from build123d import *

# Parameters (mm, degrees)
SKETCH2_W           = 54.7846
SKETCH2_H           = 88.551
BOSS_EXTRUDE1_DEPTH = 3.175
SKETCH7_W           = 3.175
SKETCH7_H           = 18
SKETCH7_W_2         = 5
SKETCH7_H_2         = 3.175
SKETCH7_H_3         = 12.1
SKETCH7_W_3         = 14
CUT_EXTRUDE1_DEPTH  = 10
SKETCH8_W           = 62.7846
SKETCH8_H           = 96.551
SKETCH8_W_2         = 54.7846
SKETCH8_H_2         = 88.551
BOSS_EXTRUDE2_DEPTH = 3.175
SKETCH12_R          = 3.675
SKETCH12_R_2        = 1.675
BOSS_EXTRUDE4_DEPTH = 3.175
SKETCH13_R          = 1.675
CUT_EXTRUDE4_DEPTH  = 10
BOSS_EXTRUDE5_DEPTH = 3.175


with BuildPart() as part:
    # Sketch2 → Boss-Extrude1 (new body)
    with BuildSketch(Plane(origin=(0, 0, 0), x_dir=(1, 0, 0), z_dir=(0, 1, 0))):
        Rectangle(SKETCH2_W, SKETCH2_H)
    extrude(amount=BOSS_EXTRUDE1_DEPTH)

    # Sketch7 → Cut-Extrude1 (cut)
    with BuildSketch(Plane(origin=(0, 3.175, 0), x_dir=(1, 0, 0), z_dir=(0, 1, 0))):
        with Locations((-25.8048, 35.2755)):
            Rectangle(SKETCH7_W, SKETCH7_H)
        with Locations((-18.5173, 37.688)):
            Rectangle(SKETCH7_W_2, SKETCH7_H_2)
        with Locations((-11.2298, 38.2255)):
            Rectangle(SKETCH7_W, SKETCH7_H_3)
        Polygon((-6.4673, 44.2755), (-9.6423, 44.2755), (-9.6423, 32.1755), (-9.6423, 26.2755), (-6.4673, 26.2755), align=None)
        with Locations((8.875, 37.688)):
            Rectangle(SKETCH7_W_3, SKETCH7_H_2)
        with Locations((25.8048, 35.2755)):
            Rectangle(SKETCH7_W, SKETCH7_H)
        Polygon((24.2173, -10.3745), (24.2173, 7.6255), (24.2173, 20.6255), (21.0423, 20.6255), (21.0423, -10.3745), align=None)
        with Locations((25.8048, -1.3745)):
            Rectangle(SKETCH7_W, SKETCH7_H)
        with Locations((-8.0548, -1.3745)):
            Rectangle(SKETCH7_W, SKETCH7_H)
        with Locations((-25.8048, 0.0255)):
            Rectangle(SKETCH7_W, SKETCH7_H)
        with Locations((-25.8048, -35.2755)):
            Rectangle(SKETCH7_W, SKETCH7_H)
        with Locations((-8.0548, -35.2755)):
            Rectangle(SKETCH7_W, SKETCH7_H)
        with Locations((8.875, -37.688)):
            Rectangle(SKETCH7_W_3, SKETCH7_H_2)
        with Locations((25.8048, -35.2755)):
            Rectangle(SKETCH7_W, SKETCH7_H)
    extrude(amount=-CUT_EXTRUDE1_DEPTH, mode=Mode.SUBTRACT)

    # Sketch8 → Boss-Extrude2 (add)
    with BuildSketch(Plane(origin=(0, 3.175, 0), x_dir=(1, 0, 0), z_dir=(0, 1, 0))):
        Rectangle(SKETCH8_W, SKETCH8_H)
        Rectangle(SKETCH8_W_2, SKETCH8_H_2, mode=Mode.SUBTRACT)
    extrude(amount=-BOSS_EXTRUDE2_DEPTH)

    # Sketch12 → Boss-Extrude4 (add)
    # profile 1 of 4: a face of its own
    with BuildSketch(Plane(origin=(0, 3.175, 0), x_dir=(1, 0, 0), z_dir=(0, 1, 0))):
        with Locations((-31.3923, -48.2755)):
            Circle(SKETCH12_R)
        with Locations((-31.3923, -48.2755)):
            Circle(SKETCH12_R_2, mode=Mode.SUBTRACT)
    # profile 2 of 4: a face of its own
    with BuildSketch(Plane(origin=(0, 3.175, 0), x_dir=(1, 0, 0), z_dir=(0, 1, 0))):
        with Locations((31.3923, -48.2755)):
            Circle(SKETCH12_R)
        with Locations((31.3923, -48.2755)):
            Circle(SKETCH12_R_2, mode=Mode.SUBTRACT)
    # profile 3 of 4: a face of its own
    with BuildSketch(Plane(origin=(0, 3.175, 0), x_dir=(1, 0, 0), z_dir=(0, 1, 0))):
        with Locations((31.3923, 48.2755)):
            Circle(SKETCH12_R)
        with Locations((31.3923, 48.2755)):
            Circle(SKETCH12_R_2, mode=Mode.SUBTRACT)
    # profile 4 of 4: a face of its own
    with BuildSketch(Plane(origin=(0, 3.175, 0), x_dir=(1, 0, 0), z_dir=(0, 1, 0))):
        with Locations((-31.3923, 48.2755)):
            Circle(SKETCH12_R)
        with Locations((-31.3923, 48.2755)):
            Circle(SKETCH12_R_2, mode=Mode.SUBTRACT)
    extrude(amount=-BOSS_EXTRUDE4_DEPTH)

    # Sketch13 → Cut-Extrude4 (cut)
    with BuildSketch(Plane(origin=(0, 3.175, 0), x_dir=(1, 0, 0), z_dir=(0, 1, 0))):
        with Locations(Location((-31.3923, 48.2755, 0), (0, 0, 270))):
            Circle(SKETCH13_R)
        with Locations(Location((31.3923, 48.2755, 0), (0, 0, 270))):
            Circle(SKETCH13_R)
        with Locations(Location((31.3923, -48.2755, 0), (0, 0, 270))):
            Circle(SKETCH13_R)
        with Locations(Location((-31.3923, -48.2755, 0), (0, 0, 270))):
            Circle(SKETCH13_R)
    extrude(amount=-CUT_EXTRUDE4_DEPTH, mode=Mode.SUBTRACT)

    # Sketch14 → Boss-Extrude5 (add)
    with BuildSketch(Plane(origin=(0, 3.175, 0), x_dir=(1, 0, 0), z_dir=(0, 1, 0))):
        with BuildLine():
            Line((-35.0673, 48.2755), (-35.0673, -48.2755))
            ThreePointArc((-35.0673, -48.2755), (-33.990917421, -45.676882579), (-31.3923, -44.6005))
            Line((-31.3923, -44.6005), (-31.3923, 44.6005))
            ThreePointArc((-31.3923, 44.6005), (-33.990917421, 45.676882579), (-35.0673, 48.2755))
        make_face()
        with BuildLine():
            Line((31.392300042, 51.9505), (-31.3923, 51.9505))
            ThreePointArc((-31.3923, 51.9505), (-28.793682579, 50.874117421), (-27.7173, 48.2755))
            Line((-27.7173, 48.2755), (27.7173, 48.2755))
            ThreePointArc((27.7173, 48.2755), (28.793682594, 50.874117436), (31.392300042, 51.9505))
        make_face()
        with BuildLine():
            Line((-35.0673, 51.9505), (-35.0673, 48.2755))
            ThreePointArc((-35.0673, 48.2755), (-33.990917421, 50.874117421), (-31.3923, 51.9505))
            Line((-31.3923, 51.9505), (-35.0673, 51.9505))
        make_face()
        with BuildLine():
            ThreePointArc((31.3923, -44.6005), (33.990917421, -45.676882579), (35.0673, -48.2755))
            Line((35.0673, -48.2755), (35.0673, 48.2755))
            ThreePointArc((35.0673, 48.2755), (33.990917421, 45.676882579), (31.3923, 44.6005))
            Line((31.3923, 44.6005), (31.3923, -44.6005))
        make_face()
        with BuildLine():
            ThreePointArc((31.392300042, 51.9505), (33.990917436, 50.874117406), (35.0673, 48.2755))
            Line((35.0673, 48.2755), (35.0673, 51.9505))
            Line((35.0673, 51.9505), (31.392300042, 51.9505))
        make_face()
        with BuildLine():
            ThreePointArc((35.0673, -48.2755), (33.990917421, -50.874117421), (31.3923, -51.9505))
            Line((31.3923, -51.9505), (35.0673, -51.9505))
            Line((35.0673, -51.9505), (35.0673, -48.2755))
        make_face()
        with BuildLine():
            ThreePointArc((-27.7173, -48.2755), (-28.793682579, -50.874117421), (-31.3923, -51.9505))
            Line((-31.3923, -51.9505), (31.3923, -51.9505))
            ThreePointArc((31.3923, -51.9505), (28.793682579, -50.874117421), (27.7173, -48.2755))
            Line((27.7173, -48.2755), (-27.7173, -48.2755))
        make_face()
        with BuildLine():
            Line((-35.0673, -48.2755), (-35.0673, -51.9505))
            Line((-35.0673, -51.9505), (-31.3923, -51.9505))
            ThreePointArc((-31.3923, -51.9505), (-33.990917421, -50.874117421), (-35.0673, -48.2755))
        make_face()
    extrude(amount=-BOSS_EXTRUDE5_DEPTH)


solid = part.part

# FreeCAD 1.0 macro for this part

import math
import FreeCAD as App
import Part
import Sketcher
from FreeCAD import Vector
Q = App.Units.Quantity

doc = App.newDocument("Part")
body = doc.addObject("PartDesign::Body", "Body")

# Sketch on XZ plane
sketch1 = doc.addObject("Sketcher::SketchObject", "Sketch")
body.addObject(sketch1)
sketch1.AttachmentSupport = (doc.XZ_Plane, [""])
sketch1.MapMode = "FlatFace"
sketch1.addGeometry(Part.LineSegment(Vector(-27, -44, 0), Vector(-27, 44, 0)), False)
sketch1.addGeometry(Part.LineSegment(Vector(-27, 44, 0), Vector(27, 44, 0)), False)
sketch1.addGeometry(Part.LineSegment(Vector(27, 44, 0), Vector(27, -44, 0)), False)
sketch1.addGeometry(Part.LineSegment(Vector(27, -44, 0), Vector(-27, -44, 0)), False)
sketch1.addConstraint(Sketcher.Constraint("Coincident", 0, 2, 1, 1))
sketch1.addConstraint(Sketcher.Constraint("Coincident", 1, 2, 2, 1))
sketch1.addConstraint(Sketcher.Constraint("Coincident", 2, 2, 3, 1))
sketch1.addConstraint(Sketcher.Constraint("Coincident", 3, 2, 0, 1))
sketch1.addConstraint(Sketcher.Constraint("Vertical", 0))
sketch1.addConstraint(Sketcher.Constraint("Horizontal", 1))
sketch1.addConstraint(Sketcher.Constraint("Vertical", 2))
sketch1.addConstraint(Sketcher.Constraint("Horizontal", 3))
sketch1.addConstraint(Sketcher.Constraint("Symmetric", 0, 2, 2, 2, -1, 1))
sketch1.addConstraint(Sketcher.Constraint("DistanceY", 0, 1, 0, 2, Q("88.551 mm")))
sketch1.addConstraint(Sketcher.Constraint("DistanceX", 1, 1, 1, 2, Q("54.7846 mm")))
pad1 = doc.addObject("PartDesign::Pad", "Pad")
body.addObject(pad1)
pad1.Profile = sketch1
pad1.Length = 3.175
pad1.Reversed = True

# Sketch on XZ plane
sketch2 = doc.addObject("Sketcher::SketchObject", "Sketch001")
body.addObject(sketch2)
sketch2.AttachmentSupport = (doc.XZ_Plane, [""])
sketch2.MapMode = "FlatFace"
sketch2.AttachmentOffset = App.Placement(Vector(0, 0, -3.175), App.Rotation())
sketch2.addGeometry(Part.LineSegment(Vector(-27.4, -44.3, 0), Vector(-27.4, -26.3, 0)), False)
sketch2.addGeometry(Part.LineSegment(Vector(-27.4, -26.3, 0), Vector(-24.2, -26.3, 0)), False)
sketch2.addGeometry(Part.LineSegment(Vector(-24.2, -26.3, 0), Vector(-24.2, -44.3, 0)), False)
sketch2.addGeometry(Part.LineSegment(Vector(-24.2, -44.3, 0), Vector(-27.4, -44.3, 0)), False)
sketch2.addGeometry(Part.LineSegment(Vector(-21, -39.3, 0), Vector(-21, -36.1, 0)), False)
sketch2.addGeometry(Part.LineSegment(Vector(-21, -36.1, 0), Vector(-16, -36.1, 0)), False)
sketch2.addGeometry(Part.LineSegment(Vector(-16, -36.1, 0), Vector(-16, -39.3, 0)), False)
sketch2.addGeometry(Part.LineSegment(Vector(-16, -39.3, 0), Vector(-21, -39.3, 0)), False)
sketch2.addGeometry(Part.LineSegment(Vector(-12.8, -44.3, 0), Vector(-12.8, -32.2, 0)), False)
sketch2.addGeometry(Part.LineSegment(Vector(-12.8, -32.2, 0), Vector(-9.6, -32.2, 0)), False)
sketch2.addGeometry(Part.LineSegment(Vector(-9.6, -32.2, 0), Vector(-9.6, -26.3, 0)), False)
sketch2.addGeometry(Part.LineSegment(Vector(-9.6, -26.3, 0), Vector(-6.5, -26.3, 0)), False)
sketch2.addGeometry(Part.LineSegment(Vector(-6.5, -26.3, 0), Vector(-6.5, -44.3, 0)), False)
sketch2.addGeometry(Part.LineSegment(Vector(-6.5, -44.3, 0), Vector(-12.8, -44.3, 0)), False)
sketch2.addGeometry(Part.LineSegment(Vector(1.9, -39.3, 0), Vector(1.9, -36.1, 0)), False)
sketch2.addGeometry(Part.LineSegment(Vector(1.9, -36.1, 0), Vector(15.9, -36.1, 0)), False)
sketch2.addGeometry(Part.LineSegment(Vector(15.9, -36.1, 0), Vector(15.9, -39.3, 0)), False)
sketch2.addGeometry(Part.LineSegment(Vector(15.9, -39.3, 0), Vector(1.9, -39.3, 0)), False)
sketch2.addGeometry(Part.LineSegment(Vector(24.2, -44.3, 0), Vector(24.2, -26.3, 0)), False)
sketch2.addGeometry(Part.LineSegment(Vector(24.2, -26.3, 0), Vector(27.4, -26.3, 0)), False)
sketch2.addGeometry(Part.LineSegment(Vector(27.4, -26.3, 0), Vector(27.4, -44.3, 0)), False)
sketch2.addGeometry(Part.LineSegment(Vector(27.4, -44.3, 0), Vector(24.2, -44.3, 0)), False)
sketch2.addGeometry(Part.LineSegment(Vector(24.2, -7.6, 0), Vector(24.2, -20.6, 0)), False)
sketch2.addGeometry(Part.LineSegment(Vector(24.2, -20.6, 0), Vector(21, -20.6, 0)), False)
sketch2.addGeometry(Part.LineSegment(Vector(21, -20.6, 0), Vector(21, 10.4, 0)), False)
sketch2.addGeometry(Part.LineSegment(Vector(21, 10.4, 0), Vector(27.4, 10.4, 0)), False)
sketch2.addGeometry(Part.LineSegment(Vector(27.4, 10.4, 0), Vector(27.4, -7.6, 0)), False)
sketch2.addGeometry(Part.LineSegment(Vector(27.4, -7.6, 0), Vector(24.2, -7.6, 0)), False)
sketch2.addGeometry(Part.LineSegment(Vector(-9.6, -7.6, 0), Vector(-9.6, 10.4, 0)), False)
sketch2.addGeometry(Part.LineSegment(Vector(-9.6, 10.4, 0), Vector(-6.5, 10.4, 0)), False)
sketch2.addGeometry(Part.LineSegment(Vector(-6.5, 10.4, 0), Vector(-6.5, -7.6, 0)), False)
sketch2.addGeometry(Part.LineSegment(Vector(-6.5, -7.6, 0), Vector(-9.6, -7.6, 0)), False)
sketch2.addGeometry(Part.LineSegment(Vector(-27.4, -9, 0), Vector(-27.4, 9, 0)), False)
sketch2.addGeometry(Part.LineSegment(Vector(-27.4, 9, 0), Vector(-24.2, 9, 0)), False)
sketch2.addGeometry(Part.LineSegment(Vector(-24.2, 9, 0), Vector(-24.2, -9, 0)), False)
sketch2.addGeometry(Part.LineSegment(Vector(-24.2, -9, 0), Vector(-27.4, -9, 0)), False)
sketch2.addGeometry(Part.LineSegment(Vector(-27.4, 26.3, 0), Vector(-27.4, 44.3, 0)), False)
sketch2.addGeometry(Part.LineSegment(Vector(-27.4, 44.3, 0), Vector(-24.2, 44.3, 0)), False)
sketch2.addGeometry(Part.LineSegment(Vector(-24.2, 44.3, 0), Vector(-24.2, 26.3, 0)), False)
sketch2.addGeometry(Part.LineSegment(Vector(-24.2, 26.3, 0), Vector(-27.4, 26.3, 0)), False)
sketch2.addGeometry(Part.LineSegment(Vector(-9.6, 26.3, 0), Vector(-9.6, 44.3, 0)), False)
sketch2.addGeometry(Part.LineSegment(Vector(-9.6, 44.3, 0), Vector(-6.5, 44.3, 0)), False)
sketch2.addGeometry(Part.LineSegment(Vector(-6.5, 44.3, 0), Vector(-6.5, 26.3, 0)), False)
sketch2.addGeometry(Part.LineSegment(Vector(-6.5, 26.3, 0), Vector(-9.6, 26.3, 0)), False)
sketch2.addGeometry(Part.LineSegment(Vector(1.9, 36.1, 0), Vector(1.9, 39.3, 0)), False)
sketch2.addGeometry(Part.LineSegment(Vector(1.9, 39.3, 0), Vector(15.9, 39.3, 0)), False)
sketch2.addGeometry(Part.LineSegment(Vector(15.9, 39.3, 0), Vector(15.9, 36.1, 0)), False)
sketch2.addGeometry(Part.LineSegment(Vector(15.9, 36.1, 0), Vector(1.9, 36.1, 0)), False)
sketch2.addGeometry(Part.LineSegment(Vector(24.2, 26.3, 0), Vector(24.2, 44.3, 0)), False)
sketch2.addGeometry(Part.LineSegment(Vector(24.2, 44.3, 0), Vector(27.4, 44.3, 0)), False)
sketch2.addGeometry(Part.LineSegment(Vector(27.4, 44.3, 0), Vector(27.4, 26.3, 0)), False)
sketch2.addGeometry(Part.LineSegment(Vector(27.4, 26.3, 0), Vector(24.2, 26.3, 0)), False)
sketch2.addConstraint(Sketcher.Constraint("Coincident", 0, 2, 1, 1))
sketch2.addConstraint(Sketcher.Constraint("Coincident", 1, 2, 2, 1))
sketch2.addConstraint(Sketcher.Constraint("Coincident", 2, 2, 3, 1))
sketch2.addConstraint(Sketcher.Constraint("Coincident", 3, 2, 0, 1))
sketch2.addConstraint(Sketcher.Constraint("Coincident", 4, 2, 5, 1))
sketch2.addConstraint(Sketcher.Constraint("Coincident", 5, 2, 6, 1))
sketch2.addConstraint(Sketcher.Constraint("Coincident", 6, 2, 7, 1))
sketch2.addConstraint(Sketcher.Constraint("Coincident", 7, 2, 4, 1))
sketch2.addConstraint(Sketcher.Constraint("Coincident", 8, 2, 9, 1))
sketch2.addConstraint(Sketcher.Constraint("Coincident", 9, 2, 10, 1))
sketch2.addConstraint(Sketcher.Constraint("Coincident", 10, 2, 11, 1))
sketch2.addConstraint(Sketcher.Constraint("Coincident", 11, 2, 12, 1))
sketch2.addConstraint(Sketcher.Constraint("Coincident", 12, 2, 13, 1))
sketch2.addConstraint(Sketcher.Constraint("Coincident", 13, 2, 8, 1))
sketch2.addConstraint(Sketcher.Constraint("Coincident", 14, 2, 15, 1))
sketch2.addConstraint(Sketcher.Constraint("Coincident", 15, 2, 16, 1))
sketch2.addConstraint(Sketcher.Constraint("Coincident", 16, 2, 17, 1))
sketch2.addConstraint(Sketcher.Constraint("Coincident", 17, 2, 14, 1))
sketch2.addConstraint(Sketcher.Constraint("Coincident", 18, 2, 19, 1))
sketch2.addConstraint(Sketcher.Constraint("Coincident", 19, 2, 20, 1))
sketch2.addConstraint(Sketcher.Constraint("Coincident", 20, 2, 21, 1))
sketch2.addConstraint(Sketcher.Constraint("Coincident", 21, 2, 18, 1))
sketch2.addConstraint(Sketcher.Constraint("Coincident", 22, 2, 23, 1))
sketch2.addConstraint(Sketcher.Constraint("Coincident", 23, 2, 24, 1))
sketch2.addConstraint(Sketcher.Constraint("Coincident", 24, 2, 25, 1))
sketch2.addConstraint(Sketcher.Constraint("Coincident", 25, 2, 26, 1))
sketch2.addConstraint(Sketcher.Constraint("Coincident", 26, 2, 27, 1))
sketch2.addConstraint(Sketcher.Constraint("Coincident", 27, 2, 22, 1))
sketch2.addConstraint(Sketcher.Constraint("Coincident", 28, 2, 29, 1))
sketch2.addConstraint(Sketcher.Constraint("Coincident", 29, 2, 30, 1))
sketch2.addConstraint(Sketcher.Constraint("Coincident", 30, 2, 31, 1))
sketch2.addConstraint(Sketcher.Constraint("Coincident", 31, 2, 28, 1))
sketch2.addConstraint(Sketcher.Constraint("Coincident", 32, 2, 33, 1))
sketch2.addConstraint(Sketcher.Constraint("Coincident", 33, 2, 34, 1))
sketch2.addConstraint(Sketcher.Constraint("Coincident", 34, 2, 35, 1))
sketch2.addConstraint(Sketcher.Constraint("Coincident", 35, 2, 32, 1))
sketch2.addConstraint(Sketcher.Constraint("Coincident", 36, 2, 37, 1))
sketch2.addConstraint(Sketcher.Constraint("Coincident", 37, 2, 38, 1))
sketch2.addConstraint(Sketcher.Constraint("Coincident", 38, 2, 39, 1))
sketch2.addConstraint(Sketcher.Constraint("Coincident", 39, 2, 36, 1))
sketch2.addConstraint(Sketcher.Constraint("Coincident", 40, 2, 41, 1))
sketch2.addConstraint(Sketcher.Constraint("Coincident", 41, 2, 42, 1))
sketch2.addConstraint(Sketcher.Constraint("Coincident", 42, 2, 43, 1))
sketch2.addConstraint(Sketcher.Constraint("Coincident", 43, 2, 40, 1))
sketch2.addConstraint(Sketcher.Constraint("Coincident", 44, 2, 45, 1))
sketch2.addConstraint(Sketcher.Constraint("Coincident", 45, 2, 46, 1))
sketch2.addConstraint(Sketcher.Constraint("Coincident", 46, 2, 47, 1))
sketch2.addConstraint(Sketcher.Constraint("Coincident", 47, 2, 44, 1))
sketch2.addConstraint(Sketcher.Constraint("Coincident", 48, 2, 49, 1))
sketch2.addConstraint(Sketcher.Constraint("Coincident", 49, 2, 50, 1))
sketch2.addConstraint(Sketcher.Constraint("Coincident", 50, 2, 51, 1))
sketch2.addConstraint(Sketcher.Constraint("Coincident", 51, 2, 48, 1))
sketch2.addConstraint(Sketcher.Constraint("Vertical", 0))
sketch2.addConstraint(Sketcher.Constraint("Horizontal", 1))
sketch2.addConstraint(Sketcher.Constraint("Vertical", 2))
sketch2.addConstraint(Sketcher.Constraint("Horizontal", 3))
sketch2.addConstraint(Sketcher.Constraint("Vertical", 4))
sketch2.addConstraint(Sketcher.Constraint("Horizontal", 5))
sketch2.addConstraint(Sketcher.Constraint("Vertical", 6))
sketch2.addConstraint(Sketcher.Constraint("Horizontal", 7))
sketch2.addConstraint(Sketcher.Constraint("Vertical", 8))
sketch2.addConstraint(Sketcher.Constraint("Horizontal", 9))
sketch2.addConstraint(Sketcher.Constraint("Vertical", 10))
sketch2.addConstraint(Sketcher.Constraint("Horizontal", 11))
sketch2.addConstraint(Sketcher.Constraint("Vertical", 12))
sketch2.addConstraint(Sketcher.Constraint("Horizontal", 13))
sketch2.addConstraint(Sketcher.Constraint("Vertical", 14))
sketch2.addConstraint(Sketcher.Constraint("Horizontal", 15))
sketch2.addConstraint(Sketcher.Constraint("Vertical", 16))
sketch2.addConstraint(Sketcher.Constraint("Horizontal", 17))
sketch2.addConstraint(Sketcher.Constraint("Vertical", 18))
sketch2.addConstraint(Sketcher.Constraint("Horizontal", 19))
sketch2.addConstraint(Sketcher.Constraint("Vertical", 20))
sketch2.addConstraint(Sketcher.Constraint("Horizontal", 21))
sketch2.addConstraint(Sketcher.Constraint("Vertical", 22))
sketch2.addConstraint(Sketcher.Constraint("Horizontal", 23))
sketch2.addConstraint(Sketcher.Constraint("Vertical", 24))
sketch2.addConstraint(Sketcher.Constraint("Horizontal", 25))
sketch2.addConstraint(Sketcher.Constraint("Vertical", 26))
sketch2.addConstraint(Sketcher.Constraint("Horizontal", 27))
sketch2.addConstraint(Sketcher.Constraint("Vertical", 28))
sketch2.addConstraint(Sketcher.Constraint("Horizontal", 29))
sketch2.addConstraint(Sketcher.Constraint("Vertical", 30))
sketch2.addConstraint(Sketcher.Constraint("Horizontal", 31))
sketch2.addConstraint(Sketcher.Constraint("Vertical", 32))
sketch2.addConstraint(Sketcher.Constraint("Horizontal", 33))
sketch2.addConstraint(Sketcher.Constraint("Vertical", 34))
sketch2.addConstraint(Sketcher.Constraint("Horizontal", 35))
sketch2.addConstraint(Sketcher.Constraint("Vertical", 36))
sketch2.addConstraint(Sketcher.Constraint("Horizontal", 37))
sketch2.addConstraint(Sketcher.Constraint("Vertical", 38))
sketch2.addConstraint(Sketcher.Constraint("Horizontal", 39))
sketch2.addConstraint(Sketcher.Constraint("Vertical", 40))
sketch2.addConstraint(Sketcher.Constraint("Horizontal", 41))
sketch2.addConstraint(Sketcher.Constraint("Vertical", 42))
sketch2.addConstraint(Sketcher.Constraint("Horizontal", 43))
sketch2.addConstraint(Sketcher.Constraint("Vertical", 44))
sketch2.addConstraint(Sketcher.Constraint("Horizontal", 45))
sketch2.addConstraint(Sketcher.Constraint("Vertical", 46))
sketch2.addConstraint(Sketcher.Constraint("Horizontal", 47))
sketch2.addConstraint(Sketcher.Constraint("Vertical", 48))
sketch2.addConstraint(Sketcher.Constraint("Horizontal", 49))
sketch2.addConstraint(Sketcher.Constraint("Vertical", 50))
sketch2.addConstraint(Sketcher.Constraint("Horizontal", 51))
sketch2.addConstraint(Sketcher.Constraint("Symmetric", 20, 2, 36, 2, -1, 1))
sketch2.addConstraint(Sketcher.Constraint("Symmetric", 18, 2, 38, 2, -1, 1))
sketch2.addConstraint(Sketcher.Constraint("Symmetric", 2, 2, 48, 2, -1, 1))
sketch2.addConstraint(Sketcher.Constraint("Symmetric", 0, 2, 50, 2, -1, 1))
sketch2.addConstraint(Sketcher.Constraint("Symmetric", 1, 2, 18, 2, -2))
sketch2.addConstraint(Sketcher.Constraint("Symmetric", 3, 2, 20, 2, -2))
sketch2.addConstraint(Sketcher.Constraint("Symmetric", 12, 2, 41, 2, -1))
sketch2.addConstraint(Sketcher.Constraint("Symmetric", 10, 2, 43, 2, -1))
sketch2.addConstraint(Sketcher.Constraint("Symmetric", 17, 2, 44, 2, -1))
sketch2.addConstraint(Sketcher.Constraint("Symmetric", 15, 2, 46, 2, -1))
sketch2.addConstraint(Sketcher.Constraint("Horizontal", 1, 2, 10, 2))
sketch2.addConstraint(Sketcher.Constraint("Horizontal", 3, 2, 12, 2))
sketch2.addConstraint(Sketcher.Constraint("Horizontal", 5, 2, 14, 2))
sketch2.addConstraint(Sketcher.Constraint("Horizontal", 7, 2, 16, 2))
sketch2.addConstraint(Sketcher.Constraint("Horizontal", 25, 2, 28, 2))
sketch2.addConstraint(Sketcher.Constraint("Horizontal", 27, 2, 30, 2))
sketch2.addConstraint(Sketcher.Constraint("Vertical", 21, 2, 22, 2))
sketch2.addConstraint(Sketcher.Constraint("Vertical", 20, 2, 25, 2))
sketch2.addConstraint(Sketcher.Constraint("Vertical", 10, 2, 28, 2))
sketch2.addConstraint(Sketcher.Constraint("Vertical", 12, 2, 29, 2))
sketch2.addConstraint(Sketcher.Constraint("Vertical", 3, 2, 32, 2))
sketch2.addConstraint(Sketcher.Constraint("Vertical", 2, 2, 33, 2))
sketch2.addConstraint(Sketcher.Constraint("Equal", 3, 9))
sketch2.addConstraint(Sketcher.Constraint("Equal", 9, 11))
sketch2.addConstraint(Sketcher.Constraint("Equal", 21, 23))
sketch2.addConstraint(Sketcher.Constraint("Equal", 51, 4))
sketch2.addConstraint(Sketcher.Constraint("Equal", 20, 26))
sketch2.addConstraint(Sketcher.Constraint("Equal", 30, 32))
sketch2.addConstraint(Sketcher.Constraint("DistanceX", 5, 1, 5, 2, Q("5 mm")))
sketch2.addConstraint(Sketcher.Constraint("DistanceX", 15, 1, 15, 2, Q("14 mm")))
sketch2.addConstraint(Sketcher.Constraint("DistanceY", 0, 1, 0, 2, Q("18 mm")))
sketch2.addConstraint(Sketcher.Constraint("DistanceY", 22, 2, 22, 1, Q("13 mm")))
sketch2.addConstraint(Sketcher.Constraint("DistanceY", 8, 1, 8, 2, Q("12.1 mm")))
sketch2.addConstraint(Sketcher.Constraint("DistanceY", 2, 2, 6, 2, Q("5 mm")))
sketch2.addConstraint(Sketcher.Constraint("DistanceX", 13, 2, 13, 1, Q("6.35 mm")))
sketch2.addConstraint(Sketcher.Constraint("DistanceX", 2, 2, 4, 2, Q("3.2 mm")))
sketch2.addConstraint(Sketcher.Constraint("DistanceX", 5, 2, 8, 2, Q("3.2 mm")))
sketch2.addConstraint(Sketcher.Constraint("DistanceY", 32, 2, 28, 2, Q("1.4 mm")))
sketch2.addConstraint(Sketcher.Constraint("DistanceY", 18, 2, 22, 2, Q("5.65 mm")))
sketch2.addConstraint(Sketcher.Constraint("DistanceX", -1, 1, 14, 2, Q("1.875 mm")))
sketch2.addConstraint(Sketcher.Constraint("DistanceY", 32, 2, 36, 2, Q("35.301 mm")))
sketch2.addConstraint(Sketcher.Constraint("DistanceX", 0, 2, -1, 1, Q("27.3923 mm")))
pocket1 = doc.addObject("PartDesign::Pocket", "Pocket")
body.addObject(pocket1)
pocket1.Profile = sketch2
pocket1.Length = 10
pocket1.Reversed = True

# Sketch on XZ plane
sketch3 = doc.addObject("Sketcher::SketchObject", "Sketch002")
body.addObject(sketch3)
sketch3.AttachmentSupport = (doc.XZ_Plane, [""])
sketch3.MapMode = "FlatFace"
sketch3.AttachmentOffset = App.Placement(Vector(0, 0, -3.175), App.Rotation())
sketch3.addGeometry(Part.LineSegment(Vector(-31, -48, 0), Vector(-31, 48, 0)), False)
sketch3.addGeometry(Part.LineSegment(Vector(-31, 48, 0), Vector(31, 48, 0)), False)
sketch3.addGeometry(Part.LineSegment(Vector(31, 48, 0), Vector(31, -48, 0)), False)
sketch3.addGeometry(Part.LineSegment(Vector(31, -48, 0), Vector(-31, -48, 0)), False)
sketch3.addGeometry(Part.LineSegment(Vector(27, 44, 0), Vector(-27, 44, 0)), False)
sketch3.addGeometry(Part.LineSegment(Vector(-27, 44, 0), Vector(-27, -44, 0)), False)
sketch3.addGeometry(Part.LineSegment(Vector(-27, -44, 0), Vector(27, -44, 0)), False)
sketch3.addGeometry(Part.LineSegment(Vector(27, -44, 0), Vector(27, 44, 0)), False)
sketch3.addConstraint(Sketcher.Constraint("Coincident", 0, 2, 1, 1))
sketch3.addConstraint(Sketcher.Constraint("Coincident", 1, 2, 2, 1))
sketch3.addConstraint(Sketcher.Constraint("Coincident", 2, 2, 3, 1))
sketch3.addConstraint(Sketcher.Constraint("Coincident", 3, 2, 0, 1))
sketch3.addConstraint(Sketcher.Constraint("Coincident", 4, 2, 5, 1))
sketch3.addConstraint(Sketcher.Constraint("Coincident", 5, 2, 6, 1))
sketch3.addConstraint(Sketcher.Constraint("Coincident", 6, 2, 7, 1))
sketch3.addConstraint(Sketcher.Constraint("Coincident", 7, 2, 4, 1))
sketch3.addConstraint(Sketcher.Constraint("Vertical", 0))
sketch3.addConstraint(Sketcher.Constraint("Horizontal", 1))
sketch3.addConstraint(Sketcher.Constraint("Vertical", 2))
sketch3.addConstraint(Sketcher.Constraint("Horizontal", 3))
sketch3.addConstraint(Sketcher.Constraint("Horizontal", 4))
sketch3.addConstraint(Sketcher.Constraint("Vertical", 5))
sketch3.addConstraint(Sketcher.Constraint("Horizontal", 6))
sketch3.addConstraint(Sketcher.Constraint("Vertical", 7))
sketch3.addConstraint(Sketcher.Constraint("Symmetric", 0, 2, 2, 2, -1, 1))
sketch3.addConstraint(Sketcher.Constraint("Symmetric", 4, 2, 6, 2, -1, 1))
sketch3.addConstraint(Sketcher.Constraint("DistanceX", 0, 2, 4, 2, Q("4 mm")))
sketch3.addConstraint(Sketcher.Constraint("DistanceY", 4, 2, 0, 2, Q("4 mm")))
sketch3.addConstraint(Sketcher.Constraint("DistanceY", 0, 1, 0, 2, Q("96.551 mm")))
sketch3.addConstraint(Sketcher.Constraint("DistanceX", 1, 1, 1, 2, Q("62.7846 mm")))
pad2 = doc.addObject("PartDesign::Pad", "Pad001")
body.addObject(pad2)
pad2.Profile = sketch3
pad2.Length = 3.175

# Sketch on XZ plane
sketch4 = doc.addObject("Sketcher::SketchObject", "Sketch003")
body.addObject(sketch4)
sketch4.AttachmentSupport = (doc.XZ_Plane, [""])
sketch4.MapMode = "FlatFace"
sketch4.AttachmentOffset = App.Placement(Vector(0, 0, -3.175), App.Rotation())
sketch4.addGeometry(Part.Circle(Vector(-31.4, 48.3, 0), Vector(0, 0, 1), 3.7), False)
sketch4.addGeometry(Part.Circle(Vector(-31.4, 48.3, 0), Vector(0, 0, 1), 1.7), False)
sketch4.addGeometry(Part.Circle(Vector(31.4, 48.3, 0), Vector(0, 0, 1), 3.7), False)
sketch4.addGeometry(Part.Circle(Vector(31.4, 48.3, 0), Vector(0, 0, 1), 1.7), False)
sketch4.addGeometry(Part.Circle(Vector(31.4, -48.3, 0), Vector(0, 0, 1), 3.7), False)
sketch4.addGeometry(Part.Circle(Vector(31.4, -48.3, 0), Vector(0, 0, 1), 1.7), False)
sketch4.addGeometry(Part.Circle(Vector(-31.4, -48.3, 0), Vector(0, 0, 1), 3.7), False)
sketch4.addGeometry(Part.Circle(Vector(-31.4, -48.3, 0), Vector(0, 0, 1), 1.7), False)
sketch4.addConstraint(Sketcher.Constraint("Coincident", 1, 3, 0, 3))
sketch4.addConstraint(Sketcher.Constraint("Coincident", 3, 3, 2, 3))
sketch4.addConstraint(Sketcher.Constraint("Coincident", 5, 3, 4, 3))
sketch4.addConstraint(Sketcher.Constraint("Coincident", 7, 3, 6, 3))
sketch4.addConstraint(Sketcher.Constraint("Equal", 0, 2))
sketch4.addConstraint(Sketcher.Constraint("Equal", 1, 3))
sketch4.addConstraint(Sketcher.Constraint("Equal", 2, 4))
sketch4.addConstraint(Sketcher.Constraint("Equal", 3, 5))
sketch4.addConstraint(Sketcher.Constraint("Equal", 4, 6))
sketch4.addConstraint(Sketcher.Constraint("Equal", 5, 7))
sketch4.addConstraint(Sketcher.Constraint("Symmetric", 0, 3, 4, 3, -1, 1))
sketch4.addConstraint(Sketcher.Constraint("Symmetric", 2, 3, 6, 3, -1, 1))
sketch4.addConstraint(Sketcher.Constraint("Symmetric", 0, 3, 2, 3, -2))
sketch4.addConstraint(Sketcher.Constraint("Diameter", 0, Q("7.35 mm")))
sketch4.addConstraint(Sketcher.Constraint("Diameter", 1, Q("3.35 mm")))
sketch4.addConstraint(Sketcher.Constraint("DistanceY", 4, 3, 2, 3, Q("96.551 mm")))
sketch4.addConstraint(Sketcher.Constraint("DistanceX", 0, 3, -1, 1, Q("31.3923 mm")))
pad3 = doc.addObject("PartDesign::Pad", "Pad002")
body.addObject(pad3)
pad3.Profile = sketch4
pad3.Length = 3.175

# Sketch on XZ plane
sketch5 = doc.addObject("Sketcher::SketchObject", "Sketch004")
body.addObject(sketch5)
sketch5.AttachmentSupport = (doc.XZ_Plane, [""])
sketch5.MapMode = "FlatFace"
sketch5.AttachmentOffset = App.Placement(Vector(0, 0, -3.175), App.Rotation())
sketch5.addGeometry(Part.Circle(Vector(-31.4, -48.3, 0), Vector(0, 0, 1), 1.7), False)
sketch5.addGeometry(Part.Circle(Vector(31.4, -48.3, 0), Vector(0, 0, 1), 1.7), False)
sketch5.addGeometry(Part.Circle(Vector(31.4, 48.3, 0), Vector(0, 0, 1), 1.7), False)
sketch5.addGeometry(Part.Circle(Vector(-31.4, 48.3, 0), Vector(0, 0, 1), 1.7), False)
sketch5.addConstraint(Sketcher.Constraint("Equal", 0, 1))
sketch5.addConstraint(Sketcher.Constraint("Equal", 1, 2))
sketch5.addConstraint(Sketcher.Constraint("Equal", 2, 3))
sketch5.addConstraint(Sketcher.Constraint("Symmetric", 0, 3, 2, 3, -1, 1))
sketch5.addConstraint(Sketcher.Constraint("Symmetric", 1, 3, 3, 3, -1, 1))
sketch5.addConstraint(Sketcher.Constraint("Symmetric", 0, 3, 1, 3, -2))
sketch5.addConstraint(Sketcher.Constraint("Diameter", 0, Q("3.35 mm")))
sketch5.addConstraint(Sketcher.Constraint("DistanceY", 1, 3, 2, 3, Q("96.551 mm")))
sketch5.addConstraint(Sketcher.Constraint("DistanceX", 0, 3, -1, 1, Q("31.3923 mm")))
pocket2 = doc.addObject("PartDesign::Pocket", "Pocket001")
body.addObject(pocket2)
pocket2.Profile = sketch5
pocket2.Length = 10
pocket2.Reversed = True

# Sketch on XZ plane
sketch6 = doc.addObject("Sketcher::SketchObject", "Sketch005")
body.addObject(sketch6)
sketch6.AttachmentSupport = (doc.XZ_Plane, [""])
sketch6.MapMode = "FlatFace"
sketch6.AttachmentOffset = App.Placement(Vector(0, 0, -3.175), App.Rotation())
sketch6.addGeometry(Part.LineSegment(Vector(-35.1, -48.3, 0), Vector(-35.1, 48.3, 0)), False)
sketch6.addGeometry(Part.ArcOfCircle(Part.Circle(Vector(-31.4, 48.3, 0), Vector(0, 0, 1), 3.7), math.radians(180), math.radians(270)), False)
sketch6.addGeometry(Part.LineSegment(Vector(-31.4, 44.6, 0), Vector(-31.4, -44.6, 0)), False)
sketch6.addGeometry(Part.ArcOfCircle(Part.Circle(Vector(-31.4, -48.3, 0), Vector(0, 0, 1), 3.7), math.radians(90), math.radians(180)), False)
sketch6.addGeometry(Part.LineSegment(Vector(31.4, -52, 0), Vector(-31.4, -52, 0)), False)
sketch6.addGeometry(Part.ArcOfCircle(Part.Circle(Vector(-31.4, -48.3, 0), Vector(0, 0, 1), 3.7), math.radians(-90), math.radians(0)), False)
sketch6.addGeometry(Part.LineSegment(Vector(-27.7, -48.3, 0), Vector(27.7, -48.3, 0)), False)
sketch6.addGeometry(Part.ArcOfCircle(Part.Circle(Vector(31.4, -48.3, 0), Vector(0, 0, 1), 3.7), math.radians(180), math.radians(270)), False)
sketch6.addGeometry(Part.LineSegment(Vector(-35.1, -52, 0), Vector(-35.1, -48.3, 0)), False)
sketch6.addGeometry(Part.ArcOfCircle(Part.Circle(Vector(-31.4, -48.3, 0), Vector(0, 0, 1), 3.7), math.radians(180), math.radians(270)), False)
sketch6.addGeometry(Part.LineSegment(Vector(-31.4, -52, 0), Vector(-35.1, -52, 0)), False)
sketch6.addGeometry(Part.ArcOfCircle(Part.Circle(Vector(31.4, 48.3, 0), Vector(0, 0, 1), 3.7), math.radians(-90), math.radians(0)), False)
sketch6.addGeometry(Part.LineSegment(Vector(35.1, 48.3, 0), Vector(35.1, -48.3, 0)), False)
sketch6.addGeometry(Part.ArcOfCircle(Part.Circle(Vector(31.4, -48.3, 0), Vector(0, 0, 1), 3.7), math.radians(0), math.radians(90)), False)
sketch6.addGeometry(Part.LineSegment(Vector(31.4, -44.6, 0), Vector(31.4, 44.6, 0)), False)
sketch6.addGeometry(Part.ArcOfCircle(Part.Circle(Vector(31.4, -48.3, 0), Vector(0, 0, 1), 3.7), math.radians(-90), math.radians(0)), False)
sketch6.addGeometry(Part.LineSegment(Vector(35.1, -48.3, 0), Vector(35.1, -52, 0)), False)
sketch6.addGeometry(Part.LineSegment(Vector(35.1, -52, 0), Vector(31.4, -52, 0)), False)
sketch6.addGeometry(Part.ArcOfCircle(Part.Circle(Vector(31.4, 48.3, 0), Vector(0, 0, 1), 3.7), math.radians(0), math.radians(90)), False)
sketch6.addGeometry(Part.LineSegment(Vector(31.4, 52, 0), Vector(35.1, 52, 0)), False)
sketch6.addGeometry(Part.LineSegment(Vector(35.1, 52, 0), Vector(35.1, 48.3, 0)), False)
sketch6.addGeometry(Part.ArcOfCircle(Part.Circle(Vector(-31.4, 48.3, 0), Vector(0, 0, 1), 3.7), math.radians(0), math.radians(90)), False)
sketch6.addGeometry(Part.LineSegment(Vector(-31.4, 52, 0), Vector(31.4, 52, 0)), False)
sketch6.addGeometry(Part.ArcOfCircle(Part.Circle(Vector(31.4, 48.3, 0), Vector(0, 0, 1), 3.7), math.radians(90), math.radians(180)), False)
sketch6.addGeometry(Part.LineSegment(Vector(27.7, 48.3, 0), Vector(-27.7, 48.3, 0)), False)
sketch6.addGeometry(Part.LineSegment(Vector(-35.1, 48.3, 0), Vector(-35.1, 52, 0)), False)
sketch6.addGeometry(Part.LineSegment(Vector(-35.1, 52, 0), Vector(-31.4, 52, 0)), False)
sketch6.addGeometry(Part.ArcOfCircle(Part.Circle(Vector(-31.4, 48.3, 0), Vector(0, 0, 1), 3.7), math.radians(90), math.radians(180)), False)
sketch6.addConstraint(Sketcher.Constraint("Tangent", 0, 2, 1, 1))
sketch6.addConstraint(Sketcher.Constraint("Coincident", 1, 2, 2, 1))
sketch6.addConstraint(Sketcher.Constraint("Coincident", 2, 2, 3, 1))
sketch6.addConstraint(Sketcher.Constraint("Tangent", 3, 2, 0, 1))
sketch6.addConstraint(Sketcher.Constraint("Tangent", 4, 2, 5, 1))
sketch6.addConstraint(Sketcher.Constraint("Coincident", 5, 2, 6, 1))
sketch6.addConstraint(Sketcher.Constraint("Coincident", 6, 2, 7, 1))
sketch6.addConstraint(Sketcher.Constraint("Tangent", 7, 2, 4, 1))
sketch6.addConstraint(Sketcher.Constraint("Tangent", 8, 2, 9, 1))
sketch6.addConstraint(Sketcher.Constraint("Tangent", 9, 2, 10, 1))
sketch6.addConstraint(Sketcher.Constraint("Coincident", 10, 2, 8, 1))
sketch6.addConstraint(Sketcher.Constraint("Tangent", 11, 2, 12, 1))
sketch6.addConstraint(Sketcher.Constraint("Tangent", 12, 2, 13, 1))
sketch6.addConstraint(Sketcher.Constraint("Coincident", 13, 2, 14, 1))
sketch6.addConstraint(Sketcher.Constraint("Coincident", 14, 2, 11, 1))
sketch6.addConstraint(Sketcher.Constraint("Tangent", 15, 2, 16, 1))
sketch6.addConstraint(Sketcher.Constraint("Coincident", 16, 2, 17, 1))
sketch6.addConstraint(Sketcher.Constraint("Tangent", 17, 2, 15, 1))
sketch6.addConstraint(Sketcher.Constraint("Tangent", 18, 2, 19, 1))
sketch6.addConstraint(Sketcher.Constraint("Coincident", 19, 2, 20, 1))
sketch6.addConstraint(Sketcher.Constraint("Tangent", 20, 2, 18, 1))
sketch6.addConstraint(Sketcher.Constraint("Tangent", 21, 2, 22, 1))
sketch6.addConstraint(Sketcher.Constraint("Tangent", 22, 2, 23, 1))
sketch6.addConstraint(Sketcher.Constraint("Coincident", 23, 2, 24, 1))
sketch6.addConstraint(Sketcher.Constraint("Coincident", 24, 2, 21, 1))
sketch6.addConstraint(Sketcher.Constraint("Coincident", 25, 2, 26, 1))
sketch6.addConstraint(Sketcher.Constraint("Tangent", 26, 2, 27, 1))
sketch6.addConstraint(Sketcher.Constraint("Tangent", 27, 2, 25, 1))
sketch6.addConstraint(Sketcher.Constraint("Vertical", 0))
sketch6.addConstraint(Sketcher.Constraint("Vertical", 2))
sketch6.addConstraint(Sketcher.Constraint("Horizontal", 4))
sketch6.addConstraint(Sketcher.Constraint("Horizontal", 6))
sketch6.addConstraint(Sketcher.Constraint("Vertical", 8))
sketch6.addConstraint(Sketcher.Constraint("Horizontal", 10))
sketch6.addConstraint(Sketcher.Constraint("Vertical", 12))
sketch6.addConstraint(Sketcher.Constraint("Vertical", 14))
sketch6.addConstraint(Sketcher.Constraint("Vertical", 16))
sketch6.addConstraint(Sketcher.Constraint("Horizontal", 17))
sketch6.addConstraint(Sketcher.Constraint("Horizontal", 19))
sketch6.addConstraint(Sketcher.Constraint("Vertical", 20))
sketch6.addConstraint(Sketcher.Constraint("Horizontal", 22))
sketch6.addConstraint(Sketcher.Constraint("Horizontal", 24))
sketch6.addConstraint(Sketcher.Constraint("Vertical", 25))
sketch6.addConstraint(Sketcher.Constraint("Horizontal", 26))
sketch6.addConstraint(Sketcher.Constraint("Coincident", 5, 3, 3, 3))
sketch6.addConstraint(Sketcher.Constraint("Coincident", 9, 3, 3, 3))
sketch6.addConstraint(Sketcher.Constraint("Coincident", 13, 3, 7, 3))
sketch6.addConstraint(Sketcher.Constraint("Coincident", 15, 3, 7, 3))
sketch6.addConstraint(Sketcher.Constraint("Coincident", 18, 3, 11, 3))
sketch6.addConstraint(Sketcher.Constraint("Coincident", 21, 3, 1, 3))
sketch6.addConstraint(Sketcher.Constraint("Coincident", 23, 3, 11, 3))
sketch6.addConstraint(Sketcher.Constraint("Coincident", 27, 3, 1, 3))
sketch6.addConstraint(Sketcher.Constraint("Equal", 1, 3))
sketch6.addConstraint(Sketcher.Constraint("Equal", 3, 5))
sketch6.addConstraint(Sketcher.Constraint("Equal", 5, 7))
sketch6.addConstraint(Sketcher.Constraint("Equal", 7, 9))
sketch6.addConstraint(Sketcher.Constraint("Equal", 9, 11))
sketch6.addConstraint(Sketcher.Constraint("Equal", 11, 13))
sketch6.addConstraint(Sketcher.Constraint("Equal", 13, 15))
sketch6.addConstraint(Sketcher.Constraint("Equal", 15, 18))
sketch6.addConstraint(Sketcher.Constraint("Equal", 18, 21))
sketch6.addConstraint(Sketcher.Constraint("Equal", 21, 23))
sketch6.addConstraint(Sketcher.Constraint("Equal", 23, 27))
sketch6.addConstraint(Sketcher.Constraint("Symmetric", 1, 3, 7, 3, -1, 1))
sketch6.addConstraint(Sketcher.Constraint("Horizontal", 3, 2, 5, 2))
sketch6.addConstraint(Sketcher.Constraint("Horizontal", 20, 2, 23, 2))
sketch6.addConstraint(Sketcher.Constraint("Vertical", 27, 3, 1, 2))
sketch6.addConstraint(Sketcher.Constraint("Vertical", 7, 2, 13, 2))
sketch6.addConstraint(Sketcher.Constraint("Radius", 1, Q("3.675 mm")))
sketch6.addConstraint(Sketcher.Constraint("DistanceY", 0, 1, 0, 2, Q("96.551 mm")))
sketch6.addConstraint(Sketcher.Constraint("DistanceX", 4, 2, 4, 1, Q("62.7846 mm")))
pad4 = doc.addObject("PartDesign::Pad", "Pad003")
body.addObject(pad4)
pad4.Profile = sketch6
pad4.Length = 3.175

doc.recompute()
